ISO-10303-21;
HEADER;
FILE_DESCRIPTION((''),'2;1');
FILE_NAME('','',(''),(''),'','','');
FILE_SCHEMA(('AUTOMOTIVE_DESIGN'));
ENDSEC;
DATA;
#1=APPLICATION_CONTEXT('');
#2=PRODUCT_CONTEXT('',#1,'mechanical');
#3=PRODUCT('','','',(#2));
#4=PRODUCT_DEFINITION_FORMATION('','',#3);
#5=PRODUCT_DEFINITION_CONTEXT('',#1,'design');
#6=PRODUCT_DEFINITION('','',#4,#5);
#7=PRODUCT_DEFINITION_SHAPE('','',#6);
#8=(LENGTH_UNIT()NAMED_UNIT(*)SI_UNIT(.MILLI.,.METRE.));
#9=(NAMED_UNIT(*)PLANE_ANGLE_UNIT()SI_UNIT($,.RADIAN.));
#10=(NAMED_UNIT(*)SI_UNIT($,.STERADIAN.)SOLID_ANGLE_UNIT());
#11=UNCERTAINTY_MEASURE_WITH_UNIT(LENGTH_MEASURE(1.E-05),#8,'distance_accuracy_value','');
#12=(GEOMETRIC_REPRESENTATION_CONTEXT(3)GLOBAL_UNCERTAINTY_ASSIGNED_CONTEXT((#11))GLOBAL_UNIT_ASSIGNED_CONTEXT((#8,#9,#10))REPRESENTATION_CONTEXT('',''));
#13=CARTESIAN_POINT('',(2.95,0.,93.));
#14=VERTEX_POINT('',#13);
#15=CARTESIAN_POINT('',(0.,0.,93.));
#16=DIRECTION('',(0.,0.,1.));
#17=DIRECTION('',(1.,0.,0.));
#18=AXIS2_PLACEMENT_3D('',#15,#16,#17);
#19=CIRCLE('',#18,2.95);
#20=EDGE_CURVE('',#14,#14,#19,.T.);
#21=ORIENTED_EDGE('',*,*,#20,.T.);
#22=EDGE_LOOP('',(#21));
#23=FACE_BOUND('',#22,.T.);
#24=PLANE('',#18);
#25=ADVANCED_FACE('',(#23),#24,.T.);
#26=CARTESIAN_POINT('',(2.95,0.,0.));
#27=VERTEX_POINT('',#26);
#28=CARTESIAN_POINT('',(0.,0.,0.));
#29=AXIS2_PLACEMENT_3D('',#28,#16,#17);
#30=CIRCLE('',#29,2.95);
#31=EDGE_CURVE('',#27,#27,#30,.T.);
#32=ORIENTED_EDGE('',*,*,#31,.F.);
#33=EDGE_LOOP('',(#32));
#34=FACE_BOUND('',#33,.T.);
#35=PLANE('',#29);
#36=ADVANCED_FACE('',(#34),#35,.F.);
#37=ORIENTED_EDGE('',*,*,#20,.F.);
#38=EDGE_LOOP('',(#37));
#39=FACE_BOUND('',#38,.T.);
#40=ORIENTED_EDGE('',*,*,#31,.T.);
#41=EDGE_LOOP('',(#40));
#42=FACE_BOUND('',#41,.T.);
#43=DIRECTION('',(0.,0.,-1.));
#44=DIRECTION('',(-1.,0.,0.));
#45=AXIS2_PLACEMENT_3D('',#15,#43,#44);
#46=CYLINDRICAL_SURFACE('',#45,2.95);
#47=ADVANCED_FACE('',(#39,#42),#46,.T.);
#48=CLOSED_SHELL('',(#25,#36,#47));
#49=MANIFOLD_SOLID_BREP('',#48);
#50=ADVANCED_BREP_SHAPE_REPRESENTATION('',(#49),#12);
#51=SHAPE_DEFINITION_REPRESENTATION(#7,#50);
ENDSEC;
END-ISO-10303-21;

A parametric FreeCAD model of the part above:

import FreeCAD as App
import Part
import Sketcher
from FreeCAD import Vector
Q = App.Units.Quantity

doc = App.newDocument("Part")
body = doc.addObject("PartDesign::Body", "Body")

# Sketch on XY plane
sketch1 = body.newObject("Sketcher::SketchObject", "Sketch")
sketch1.AttachmentSupport = (doc.getObject("XY_Plane"), [""])
sketch1.MapMode = "FlatFace"
sketch1.addGeometry(Part.Circle(Vector(0, 0, 0), Vector(0, 0, 1), 3), False)
sketch1.addConstraint([
    Sketcher.Constraint("Coincident", 0, 3, -1, 1),
    Sketcher.Constraint("Diameter", 0, Q("5.9 mm")),
])
pad1 = body.newObject("PartDesign::Pad", "Pad")
pad1.Profile = sketch1
pad1.Length = 93

doc.recompute()
